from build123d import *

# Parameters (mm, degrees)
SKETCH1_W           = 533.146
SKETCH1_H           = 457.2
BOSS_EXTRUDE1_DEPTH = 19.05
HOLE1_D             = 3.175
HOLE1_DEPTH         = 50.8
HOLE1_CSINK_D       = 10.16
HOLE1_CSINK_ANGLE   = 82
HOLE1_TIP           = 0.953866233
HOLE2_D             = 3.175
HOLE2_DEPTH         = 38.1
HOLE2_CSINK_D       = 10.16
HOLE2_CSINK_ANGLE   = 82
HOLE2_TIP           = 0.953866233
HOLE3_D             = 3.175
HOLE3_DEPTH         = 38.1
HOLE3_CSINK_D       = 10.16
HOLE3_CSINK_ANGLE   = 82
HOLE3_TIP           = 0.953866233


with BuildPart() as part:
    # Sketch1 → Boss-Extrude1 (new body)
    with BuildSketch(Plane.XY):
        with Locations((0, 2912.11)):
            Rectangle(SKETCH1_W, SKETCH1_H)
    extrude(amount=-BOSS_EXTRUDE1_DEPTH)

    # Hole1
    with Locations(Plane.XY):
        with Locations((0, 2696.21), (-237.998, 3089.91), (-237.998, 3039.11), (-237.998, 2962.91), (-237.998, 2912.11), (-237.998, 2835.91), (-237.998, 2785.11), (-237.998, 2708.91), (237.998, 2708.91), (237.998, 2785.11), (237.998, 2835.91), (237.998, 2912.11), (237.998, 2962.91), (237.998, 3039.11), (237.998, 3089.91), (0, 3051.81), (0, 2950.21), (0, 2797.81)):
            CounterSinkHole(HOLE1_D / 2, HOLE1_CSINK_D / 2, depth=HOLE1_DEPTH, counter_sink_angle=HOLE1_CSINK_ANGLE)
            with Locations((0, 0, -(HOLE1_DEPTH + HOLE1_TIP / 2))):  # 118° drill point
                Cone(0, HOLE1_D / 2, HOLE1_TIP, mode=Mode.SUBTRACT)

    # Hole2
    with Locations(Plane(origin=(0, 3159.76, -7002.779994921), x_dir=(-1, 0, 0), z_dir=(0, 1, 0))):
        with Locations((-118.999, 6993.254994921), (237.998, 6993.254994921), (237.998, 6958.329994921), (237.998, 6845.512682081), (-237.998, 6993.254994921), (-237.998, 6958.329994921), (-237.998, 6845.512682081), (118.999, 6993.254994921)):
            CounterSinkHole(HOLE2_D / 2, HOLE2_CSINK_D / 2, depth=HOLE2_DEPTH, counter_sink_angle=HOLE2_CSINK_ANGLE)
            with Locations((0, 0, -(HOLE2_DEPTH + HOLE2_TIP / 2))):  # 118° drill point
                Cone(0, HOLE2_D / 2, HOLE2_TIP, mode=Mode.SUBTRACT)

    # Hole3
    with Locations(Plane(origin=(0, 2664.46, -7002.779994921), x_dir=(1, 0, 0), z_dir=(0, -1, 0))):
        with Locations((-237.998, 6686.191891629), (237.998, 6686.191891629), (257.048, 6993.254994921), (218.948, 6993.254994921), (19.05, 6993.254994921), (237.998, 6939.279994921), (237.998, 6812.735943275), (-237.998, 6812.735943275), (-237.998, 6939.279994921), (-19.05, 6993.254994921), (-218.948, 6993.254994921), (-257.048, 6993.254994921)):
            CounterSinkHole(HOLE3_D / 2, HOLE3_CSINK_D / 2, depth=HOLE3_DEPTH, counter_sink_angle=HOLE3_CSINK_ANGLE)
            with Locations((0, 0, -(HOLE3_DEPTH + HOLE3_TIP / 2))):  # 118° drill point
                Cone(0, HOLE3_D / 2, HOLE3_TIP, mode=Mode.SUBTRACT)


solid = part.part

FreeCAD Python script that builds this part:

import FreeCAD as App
import Part
import Sketcher

V = App.Vector
Q = App.Units.Quantity


def add_polygon(sketch, points):
    """Adds a closed chain of lines whose ends are joined by coincident constraints."""
    first, n = sketch.GeometryCount, len(points)
    for a, b in zip(points, points[1:] + points[:1]):
        sketch.addGeometry(Part.LineSegment(App.Vector(*a, 0), App.Vector(*b, 0)), False)
    for i in range(n):
        sketch.addConstraint(Sketcher.Constraint("Coincident", first + i, 2, first + (i + 1) % n, 1))

doc = App.newDocument("Part")
body = doc.addObject("PartDesign::Body", "Body")

sketch1 = body.newObject("Sketcher::SketchObject", "Sketch")
sketch1.AttachmentSupport = (doc.getObject("XY_Plane"), [""])
sketch1.MapMode = "FlatFace"
add_polygon(sketch1, [(-267, 3141), (-267, 2684), (267, 2684), (267, 3141)])
sketch1.addConstraint([
    Sketcher.Constraint("Vertical", 0),
    Sketcher.Constraint("Horizontal", 1),
    Sketcher.Constraint("Vertical", 2),
    Sketcher.Constraint("Horizontal", 3),
    Sketcher.Constraint("DistanceY", 0, 2, 0, 1, Q("18 in")),
    Sketcher.Constraint("DistanceX", 1, 1, 1, 2, Q("20.99 in")),
    Sketcher.Constraint("DistanceY", -1, 1, 0, 2, Q("105.65 in")),
    Sketcher.Constraint("DistanceX", 0, 2, -1, 1, Q("10.495 in")),
])
pad1 = body.newObject("PartDesign::Pad", "Pad")
pad1.Profile = sketch1
pad1.Length = Q("0.75 in")
pad1.Reversed = True

sketch2 = body.newObject("Sketcher::SketchObject", "Sketch001")
sketch2.AttachmentSupport = (doc.getObject("XY_Plane"), [""])
sketch2.MapMode = "FlatFace"
sketch2.addGeometry([
    Part.Circle(V(0, 2696.2, 0), V(0, 0, 1), 1.6),
    Part.Circle(V(-238, 3089.9, 0), V(0, 0, 1), 1.6),
    Part.Circle(V(-238, 3039.1, 0), V(0, 0, 1), 1.6),
    Part.Circle(V(-238, 2962.9, 0), V(0, 0, 1), 1.6),
    Part.Circle(V(-238, 2912.1, 0), V(0, 0, 1), 1.6),
    Part.Circle(V(-238, 2835.9, 0), V(0, 0, 1), 1.6),
    Part.Circle(V(-238, 2785.1, 0), V(0, 0, 1), 1.6),
    Part.Circle(V(-238, 2708.9, 0), V(0, 0, 1), 1.6),
    Part.Circle(V(238, 2708.9, 0), V(0, 0, 1), 1.6),
    Part.Circle(V(238, 2785.1, 0), V(0, 0, 1), 1.6),
    Part.Circle(V(238, 2835.9, 0), V(0, 0, 1), 1.6),
    Part.Circle(V(238, 2912.1, 0), V(0, 0, 1), 1.6),
    Part.Circle(V(238, 2962.9, 0), V(0, 0, 1), 1.6),
    Part.Circle(V(238, 3039.1, 0), V(0, 0, 1), 1.6),
    Part.Circle(V(238, 3089.9, 0), V(0, 0, 1), 1.6),
    Part.Circle(V(0, 3051.8, 0), V(0, 0, 1), 1.6),
    Part.Circle(V(0, 2950.2, 0), V(0, 0, 1), 1.6),
    Part.Circle(V(0, 2797.8, 0), V(0, 0, 1), 1.6),
], False)
sketch2.addConstraint([
    Sketcher.Constraint("Equal", 0, 1),
    Sketcher.Constraint("Equal", 1, 2),
    Sketcher.Constraint("Equal", 2, 3),
    Sketcher.Constraint("Equal", 3, 4),
    Sketcher.Constraint("Equal", 4, 5),
    Sketcher.Constraint("Equal", 5, 6),
    Sketcher.Constraint("Equal", 6, 7),
    Sketcher.Constraint("Equal", 7, 8),
    Sketcher.Constraint("Equal", 8, 9),
    Sketcher.Constraint("Equal", 9, 10),
    Sketcher.Constraint("Equal", 10, 11),
    Sketcher.Constraint("Equal", 11, 12),
    Sketcher.Constraint("Equal", 12, 13),
    Sketcher.Constraint("Equal", 13, 14),
    Sketcher.Constraint("Equal", 14, 15),
    Sketcher.Constraint("Equal", 15, 16),
    Sketcher.Constraint("Equal", 16, 17),
    Sketcher.Constraint("Symmetric", 7, 3, 8, 3, -2),
    Sketcher.Constraint("Symmetric", 6, 3, 9, 3, -2),
    Sketcher.Constraint("Symmetric", 5, 3, 10, 3, -2),
    Sketcher.Constraint("Symmetric", 4, 3, 11, 3, -2),
    Sketcher.Constraint("Symmetric", 3, 3, 12, 3, -2),
    Sketcher.Constraint("Symmetric", 2, 3, 13, 3, -2),
    Sketcher.Constraint("Symmetric", 1, 3, 14, 3, -2),
    Sketcher.Constraint("PointOnObject", 0, 3, -2),
    Sketcher.Constraint("PointOnObject", 15, 3, -2),
    Sketcher.Constraint("PointOnObject", 16, 3, -2),
    Sketcher.Constraint("PointOnObject", 17, 3, -2),
    Sketcher.Constraint("Vertical", 1, 3, 2, 3),
    Sketcher.Constraint("Vertical", 2, 3, 3, 3),
    Sketcher.Constraint("Vertical", 3, 3, 4, 3),
    Sketcher.Constraint("Vertical", 4, 3, 5, 3),
    Sketcher.Constraint("Vertical", 5, 3, 6, 3),
    Sketcher.Constraint("Vertical", 6, 3, 7, 3),
    Sketcher.Constraint("Diameter", 0, Q("0.125 in")),
    Sketcher.Constraint("DistanceY", 2, 3, 1, 3, Q("2 in")),
    Sketcher.Constraint("DistanceY", 3, 3, 2, 3, Q("3 in")),
    Sketcher.Constraint("DistanceY", 4, 3, 3, 3, Q("2 in")),
    Sketcher.Constraint("DistanceY", 5, 3, 4, 3, Q("3 in")),
    Sketcher.Constraint("DistanceY", 6, 3, 5, 3, Q("2 in")),
    Sketcher.Constraint("DistanceY", 7, 3, 6, 3, Q("3 in")),
    Sketcher.Constraint("DistanceY", 16, 3, 15, 3, Q("4 in")),
    Sketcher.Constraint("DistanceY", 0, 3, 17, 3, Q("4 in")),
    Sketcher.Constraint("DistanceY", 17, 3, 16, 3, Q("6 in")),
    Sketcher.Constraint("DistanceY", 0, 3, 1, 3, Q("15.5 in")),
    Sketcher.Constraint("DistanceY", -1, 1, 0, 3, Q("106.15 in")),
    Sketcher.Constraint("DistanceX", 1, 3, -1, 1, Q("9.37 in")),
])
doc.recompute()
hole = body.newObject("PartDesign::Hole", "Hole")
hole.Profile = sketch2
hole.ThreadType = "None"
hole.Diameter = Q("0.125 in")
hole.DepthType = "Dimension"
hole.Depth = Q("2 in")
hole.DrillPoint = "Angled"
hole.DrillPointAngle = 118
hole.HoleCutType = "Countersink"
hole.HoleCutDiameter = Q("0.4 in")
hole.HoleCutCountersinkAngle = 82

sketch3 = body.newObject("Sketcher::SketchObject", "Sketch002")
sketch3.AttachmentSupport = (doc.getObject("XZ_Plane"), [""])
sketch3.MapMode = "FlatFace"
sketch3.AttachmentOffset = App.Placement(V(0, 0, -124.4 * 25.4), App.Rotation())
sketch3.addGeometry([
    Part.Circle(V(119, -9.5, 0), V(0, 0, 1), 1.6),
    Part.Circle(V(-238, -9.5, 0), V(0, 0, 1), 1.6),
    Part.Circle(V(-238, -44.5, 0), V(0, 0, 1), 1.6),
    Part.Circle(V(-238, -157.3, 0), V(0, 0, 1), 1.6),
    Part.Circle(V(238, -9.5, 0), V(0, 0, 1), 1.6),
    Part.Circle(V(238, -44.5, 0), V(0, 0, 1), 1.6),
    Part.Circle(V(238, -157.3, 0), V(0, 0, 1), 1.6),
    Part.Circle(V(-119, -9.5, 0), V(0, 0, 1), 1.6),
], False)
sketch3.addConstraint([
    Sketcher.Constraint("Equal", 0, 1),
    Sketcher.Constraint("Equal", 1, 2),
    Sketcher.Constraint("Equal", 2, 3),
    Sketcher.Constraint("Equal", 3, 4),
    Sketcher.Constraint("Equal", 4, 5),
    Sketcher.Constraint("Equal", 5, 6),
    Sketcher.Constraint("Equal", 6, 7),
    Sketcher.Constraint("Symmetric", 1, 3, 4, 3, -2),
    Sketcher.Constraint("Symmetric", 2, 3, 5, 3, -2),
    Sketcher.Constraint("Symmetric", 3, 3, 6, 3, -2),
    Sketcher.Constraint("Symmetric", 0, 3, 7, 3, -2),
    Sketcher.Constraint("Horizontal", 0, 3, 1, 3),
    Sketcher.Constraint("Vertical", 1, 3, 2, 3),
    Sketcher.Constraint("Vertical", 2, 3, 3, 3),
    Sketcher.Constraint("Diameter", 0, Q("0.125 in")),
    Sketcher.Constraint("DistanceX", 1, 3, -1, 1, Q("9.37 in")),
    Sketcher.Constraint("DistanceY", 2, 3, -1, 1, Q("1.75 in")),
    Sketcher.Constraint("DistanceX", 7, 3, 0, 3, Q("9.37 in")),
    Sketcher.Constraint("DistanceY", 0, 3, -1, 1, Q("0.375 in")),
    Sketcher.Constraint("DistanceY", 3, 3, -1, 1, Q("157.267313 mm")),
])
doc.recompute()
hole2 = body.newObject("PartDesign::Hole", "Hole001")
hole2.Profile = sketch3
hole2.ThreadType = "None"
hole2.Diameter = Q("0.125 in")
hole2.DepthType = "Dimension"
hole2.Depth = Q("1.5 in")
hole2.DrillPoint = "Angled"
hole2.DrillPointAngle = 118
hole2.HoleCutType = "Countersink"
hole2.HoleCutDiameter = Q("0.4 in")
hole2.HoleCutCountersinkAngle = 82
hole2.Reversed = True

sketch4 = body.newObject("Sketcher::SketchObject", "Sketch003")
sketch4.AttachmentSupport = (doc.getObject("XZ_Plane"), [""])
sketch4.MapMode = "FlatFace"
sketch4.AttachmentOffset = App.Placement(V(0, 0, -104.9 * 25.4), App.Rotation())
sketch4.addGeometry([
    Part.Circle(V(-238, -316.6, 0), V(0, 0, 1), 1.6),
    Part.Circle(V(238, -316.6, 0), V(0, 0, 1), 1.6),
    Part.Circle(V(257, -9.5, 0), V(0, 0, 1), 1.6),
    Part.Circle(V(218.9, -9.5, 0), V(0, 0, 1), 1.6),
    Part.Circle(V(19.1, -9.5, 0), V(0, 0, 1), 1.6),
    Part.Circle(V(238, -63.5, 0), V(0, 0, 1), 1.6),
    Part.Circle(V(238, -190, 0), V(0, 0, 1), 1.6),
    Part.Circle(V(-238, -190, 0), V(0, 0, 1), 1.6),
    Part.Circle(V(-238, -63.5, 0), V(0, 0, 1), 1.6),
    Part.Circle(V(-19.1, -9.5, 0), V(0, 0, 1), 1.6),
    Part.Circle(V(-218.9, -9.5, 0), V(0, 0, 1), 1.6),
    Part.Circle(V(-257, -9.5, 0), V(0, 0, 1), 1.6),
], False)
sketch4.addConstraint([
    Sketcher.Constraint("Equal", 0, 1),
    Sketcher.Constraint("Equal", 1, 2),
    Sketcher.Constraint("Equal", 2, 3),
    Sketcher.Constraint("Equal", 3, 4),
    Sketcher.Constraint("Equal", 4, 5),
    Sketcher.Constraint("Equal", 5, 6),
    Sketcher.Constraint("Equal", 6, 7),
    Sketcher.Constraint("Equal", 7, 8),
    Sketcher.Constraint("Equal", 8, 9),
    Sketcher.Constraint("Equal", 9, 10),
    Sketcher.Constraint("Equal", 10, 11),
    Sketcher.Constraint("Symmetric", 0, 3, 1, 3, -2),
    Sketcher.Constraint("Symmetric", 6, 3, 7, 3, -2),
    Sketcher.Constraint("Symmetric", 5, 3, 8, 3, -2),
    Sketcher.Constraint("Symmetric", 4, 3, 9, 3, -2),
    Sketcher.Constraint("Symmetric", 3, 3, 10, 3, -2),
    Sketcher.Constraint("Symmetric", 2, 3, 11, 3, -2),
    Sketcher.Constraint("Horizontal", 2, 3, 3, 3),
    Sketcher.Constraint("Horizontal", 3, 3, 4, 3),
    Sketcher.Constraint("Vertical", 1, 3, 5, 3),
    Sketcher.Constraint("Vertical", 5, 3, 6, 3),
    Sketcher.Constraint("Diameter", 0, Q("0.125 in")),
    Sketcher.Constraint("DistanceY", 5, 3, -1, 1, Q("2.5 in")),
    Sketcher.Constraint("DistanceX", 3, 3, 2, 3, Q("1.5 in")),
    Sketcher.Constraint("DistanceX", 9, 3, 4, 3, Q("1.5 in")),
    Sketcher.Constraint("DistanceX", 0, 3, -1, 1, Q("9.37 in")),
    Sketcher.Constraint("DistanceX", -1, 1, 2, 3, Q("10.12 in")),
    Sketcher.Constraint("DistanceY", 2, 3, -1, 1, Q("0.375 in")),
    Sketcher.Constraint("DistanceY", 6, 3, -1, 1, Q("190.044052 mm")),
    Sketcher.Constraint("DistanceY", 1, 3, 6, 3, Q("126.544052 mm")),
])
doc.recompute()
hole3 = body.newObject("PartDesign::Hole", "Hole002")
hole3.Profile = sketch4
hole3.ThreadType = "None"
hole3.Diameter = Q("0.125 in")
hole3.DepthType = "Dimension"
hole3.Depth = Q("1.5 in")
hole3.DrillPoint = "Angled"
hole3.DrillPointAngle = 118
hole3.HoleCutType = "Countersink"
hole3.HoleCutDiameter = Q("0.4 in")
hole3.HoleCutCountersinkAngle = 82

doc.recompute()
